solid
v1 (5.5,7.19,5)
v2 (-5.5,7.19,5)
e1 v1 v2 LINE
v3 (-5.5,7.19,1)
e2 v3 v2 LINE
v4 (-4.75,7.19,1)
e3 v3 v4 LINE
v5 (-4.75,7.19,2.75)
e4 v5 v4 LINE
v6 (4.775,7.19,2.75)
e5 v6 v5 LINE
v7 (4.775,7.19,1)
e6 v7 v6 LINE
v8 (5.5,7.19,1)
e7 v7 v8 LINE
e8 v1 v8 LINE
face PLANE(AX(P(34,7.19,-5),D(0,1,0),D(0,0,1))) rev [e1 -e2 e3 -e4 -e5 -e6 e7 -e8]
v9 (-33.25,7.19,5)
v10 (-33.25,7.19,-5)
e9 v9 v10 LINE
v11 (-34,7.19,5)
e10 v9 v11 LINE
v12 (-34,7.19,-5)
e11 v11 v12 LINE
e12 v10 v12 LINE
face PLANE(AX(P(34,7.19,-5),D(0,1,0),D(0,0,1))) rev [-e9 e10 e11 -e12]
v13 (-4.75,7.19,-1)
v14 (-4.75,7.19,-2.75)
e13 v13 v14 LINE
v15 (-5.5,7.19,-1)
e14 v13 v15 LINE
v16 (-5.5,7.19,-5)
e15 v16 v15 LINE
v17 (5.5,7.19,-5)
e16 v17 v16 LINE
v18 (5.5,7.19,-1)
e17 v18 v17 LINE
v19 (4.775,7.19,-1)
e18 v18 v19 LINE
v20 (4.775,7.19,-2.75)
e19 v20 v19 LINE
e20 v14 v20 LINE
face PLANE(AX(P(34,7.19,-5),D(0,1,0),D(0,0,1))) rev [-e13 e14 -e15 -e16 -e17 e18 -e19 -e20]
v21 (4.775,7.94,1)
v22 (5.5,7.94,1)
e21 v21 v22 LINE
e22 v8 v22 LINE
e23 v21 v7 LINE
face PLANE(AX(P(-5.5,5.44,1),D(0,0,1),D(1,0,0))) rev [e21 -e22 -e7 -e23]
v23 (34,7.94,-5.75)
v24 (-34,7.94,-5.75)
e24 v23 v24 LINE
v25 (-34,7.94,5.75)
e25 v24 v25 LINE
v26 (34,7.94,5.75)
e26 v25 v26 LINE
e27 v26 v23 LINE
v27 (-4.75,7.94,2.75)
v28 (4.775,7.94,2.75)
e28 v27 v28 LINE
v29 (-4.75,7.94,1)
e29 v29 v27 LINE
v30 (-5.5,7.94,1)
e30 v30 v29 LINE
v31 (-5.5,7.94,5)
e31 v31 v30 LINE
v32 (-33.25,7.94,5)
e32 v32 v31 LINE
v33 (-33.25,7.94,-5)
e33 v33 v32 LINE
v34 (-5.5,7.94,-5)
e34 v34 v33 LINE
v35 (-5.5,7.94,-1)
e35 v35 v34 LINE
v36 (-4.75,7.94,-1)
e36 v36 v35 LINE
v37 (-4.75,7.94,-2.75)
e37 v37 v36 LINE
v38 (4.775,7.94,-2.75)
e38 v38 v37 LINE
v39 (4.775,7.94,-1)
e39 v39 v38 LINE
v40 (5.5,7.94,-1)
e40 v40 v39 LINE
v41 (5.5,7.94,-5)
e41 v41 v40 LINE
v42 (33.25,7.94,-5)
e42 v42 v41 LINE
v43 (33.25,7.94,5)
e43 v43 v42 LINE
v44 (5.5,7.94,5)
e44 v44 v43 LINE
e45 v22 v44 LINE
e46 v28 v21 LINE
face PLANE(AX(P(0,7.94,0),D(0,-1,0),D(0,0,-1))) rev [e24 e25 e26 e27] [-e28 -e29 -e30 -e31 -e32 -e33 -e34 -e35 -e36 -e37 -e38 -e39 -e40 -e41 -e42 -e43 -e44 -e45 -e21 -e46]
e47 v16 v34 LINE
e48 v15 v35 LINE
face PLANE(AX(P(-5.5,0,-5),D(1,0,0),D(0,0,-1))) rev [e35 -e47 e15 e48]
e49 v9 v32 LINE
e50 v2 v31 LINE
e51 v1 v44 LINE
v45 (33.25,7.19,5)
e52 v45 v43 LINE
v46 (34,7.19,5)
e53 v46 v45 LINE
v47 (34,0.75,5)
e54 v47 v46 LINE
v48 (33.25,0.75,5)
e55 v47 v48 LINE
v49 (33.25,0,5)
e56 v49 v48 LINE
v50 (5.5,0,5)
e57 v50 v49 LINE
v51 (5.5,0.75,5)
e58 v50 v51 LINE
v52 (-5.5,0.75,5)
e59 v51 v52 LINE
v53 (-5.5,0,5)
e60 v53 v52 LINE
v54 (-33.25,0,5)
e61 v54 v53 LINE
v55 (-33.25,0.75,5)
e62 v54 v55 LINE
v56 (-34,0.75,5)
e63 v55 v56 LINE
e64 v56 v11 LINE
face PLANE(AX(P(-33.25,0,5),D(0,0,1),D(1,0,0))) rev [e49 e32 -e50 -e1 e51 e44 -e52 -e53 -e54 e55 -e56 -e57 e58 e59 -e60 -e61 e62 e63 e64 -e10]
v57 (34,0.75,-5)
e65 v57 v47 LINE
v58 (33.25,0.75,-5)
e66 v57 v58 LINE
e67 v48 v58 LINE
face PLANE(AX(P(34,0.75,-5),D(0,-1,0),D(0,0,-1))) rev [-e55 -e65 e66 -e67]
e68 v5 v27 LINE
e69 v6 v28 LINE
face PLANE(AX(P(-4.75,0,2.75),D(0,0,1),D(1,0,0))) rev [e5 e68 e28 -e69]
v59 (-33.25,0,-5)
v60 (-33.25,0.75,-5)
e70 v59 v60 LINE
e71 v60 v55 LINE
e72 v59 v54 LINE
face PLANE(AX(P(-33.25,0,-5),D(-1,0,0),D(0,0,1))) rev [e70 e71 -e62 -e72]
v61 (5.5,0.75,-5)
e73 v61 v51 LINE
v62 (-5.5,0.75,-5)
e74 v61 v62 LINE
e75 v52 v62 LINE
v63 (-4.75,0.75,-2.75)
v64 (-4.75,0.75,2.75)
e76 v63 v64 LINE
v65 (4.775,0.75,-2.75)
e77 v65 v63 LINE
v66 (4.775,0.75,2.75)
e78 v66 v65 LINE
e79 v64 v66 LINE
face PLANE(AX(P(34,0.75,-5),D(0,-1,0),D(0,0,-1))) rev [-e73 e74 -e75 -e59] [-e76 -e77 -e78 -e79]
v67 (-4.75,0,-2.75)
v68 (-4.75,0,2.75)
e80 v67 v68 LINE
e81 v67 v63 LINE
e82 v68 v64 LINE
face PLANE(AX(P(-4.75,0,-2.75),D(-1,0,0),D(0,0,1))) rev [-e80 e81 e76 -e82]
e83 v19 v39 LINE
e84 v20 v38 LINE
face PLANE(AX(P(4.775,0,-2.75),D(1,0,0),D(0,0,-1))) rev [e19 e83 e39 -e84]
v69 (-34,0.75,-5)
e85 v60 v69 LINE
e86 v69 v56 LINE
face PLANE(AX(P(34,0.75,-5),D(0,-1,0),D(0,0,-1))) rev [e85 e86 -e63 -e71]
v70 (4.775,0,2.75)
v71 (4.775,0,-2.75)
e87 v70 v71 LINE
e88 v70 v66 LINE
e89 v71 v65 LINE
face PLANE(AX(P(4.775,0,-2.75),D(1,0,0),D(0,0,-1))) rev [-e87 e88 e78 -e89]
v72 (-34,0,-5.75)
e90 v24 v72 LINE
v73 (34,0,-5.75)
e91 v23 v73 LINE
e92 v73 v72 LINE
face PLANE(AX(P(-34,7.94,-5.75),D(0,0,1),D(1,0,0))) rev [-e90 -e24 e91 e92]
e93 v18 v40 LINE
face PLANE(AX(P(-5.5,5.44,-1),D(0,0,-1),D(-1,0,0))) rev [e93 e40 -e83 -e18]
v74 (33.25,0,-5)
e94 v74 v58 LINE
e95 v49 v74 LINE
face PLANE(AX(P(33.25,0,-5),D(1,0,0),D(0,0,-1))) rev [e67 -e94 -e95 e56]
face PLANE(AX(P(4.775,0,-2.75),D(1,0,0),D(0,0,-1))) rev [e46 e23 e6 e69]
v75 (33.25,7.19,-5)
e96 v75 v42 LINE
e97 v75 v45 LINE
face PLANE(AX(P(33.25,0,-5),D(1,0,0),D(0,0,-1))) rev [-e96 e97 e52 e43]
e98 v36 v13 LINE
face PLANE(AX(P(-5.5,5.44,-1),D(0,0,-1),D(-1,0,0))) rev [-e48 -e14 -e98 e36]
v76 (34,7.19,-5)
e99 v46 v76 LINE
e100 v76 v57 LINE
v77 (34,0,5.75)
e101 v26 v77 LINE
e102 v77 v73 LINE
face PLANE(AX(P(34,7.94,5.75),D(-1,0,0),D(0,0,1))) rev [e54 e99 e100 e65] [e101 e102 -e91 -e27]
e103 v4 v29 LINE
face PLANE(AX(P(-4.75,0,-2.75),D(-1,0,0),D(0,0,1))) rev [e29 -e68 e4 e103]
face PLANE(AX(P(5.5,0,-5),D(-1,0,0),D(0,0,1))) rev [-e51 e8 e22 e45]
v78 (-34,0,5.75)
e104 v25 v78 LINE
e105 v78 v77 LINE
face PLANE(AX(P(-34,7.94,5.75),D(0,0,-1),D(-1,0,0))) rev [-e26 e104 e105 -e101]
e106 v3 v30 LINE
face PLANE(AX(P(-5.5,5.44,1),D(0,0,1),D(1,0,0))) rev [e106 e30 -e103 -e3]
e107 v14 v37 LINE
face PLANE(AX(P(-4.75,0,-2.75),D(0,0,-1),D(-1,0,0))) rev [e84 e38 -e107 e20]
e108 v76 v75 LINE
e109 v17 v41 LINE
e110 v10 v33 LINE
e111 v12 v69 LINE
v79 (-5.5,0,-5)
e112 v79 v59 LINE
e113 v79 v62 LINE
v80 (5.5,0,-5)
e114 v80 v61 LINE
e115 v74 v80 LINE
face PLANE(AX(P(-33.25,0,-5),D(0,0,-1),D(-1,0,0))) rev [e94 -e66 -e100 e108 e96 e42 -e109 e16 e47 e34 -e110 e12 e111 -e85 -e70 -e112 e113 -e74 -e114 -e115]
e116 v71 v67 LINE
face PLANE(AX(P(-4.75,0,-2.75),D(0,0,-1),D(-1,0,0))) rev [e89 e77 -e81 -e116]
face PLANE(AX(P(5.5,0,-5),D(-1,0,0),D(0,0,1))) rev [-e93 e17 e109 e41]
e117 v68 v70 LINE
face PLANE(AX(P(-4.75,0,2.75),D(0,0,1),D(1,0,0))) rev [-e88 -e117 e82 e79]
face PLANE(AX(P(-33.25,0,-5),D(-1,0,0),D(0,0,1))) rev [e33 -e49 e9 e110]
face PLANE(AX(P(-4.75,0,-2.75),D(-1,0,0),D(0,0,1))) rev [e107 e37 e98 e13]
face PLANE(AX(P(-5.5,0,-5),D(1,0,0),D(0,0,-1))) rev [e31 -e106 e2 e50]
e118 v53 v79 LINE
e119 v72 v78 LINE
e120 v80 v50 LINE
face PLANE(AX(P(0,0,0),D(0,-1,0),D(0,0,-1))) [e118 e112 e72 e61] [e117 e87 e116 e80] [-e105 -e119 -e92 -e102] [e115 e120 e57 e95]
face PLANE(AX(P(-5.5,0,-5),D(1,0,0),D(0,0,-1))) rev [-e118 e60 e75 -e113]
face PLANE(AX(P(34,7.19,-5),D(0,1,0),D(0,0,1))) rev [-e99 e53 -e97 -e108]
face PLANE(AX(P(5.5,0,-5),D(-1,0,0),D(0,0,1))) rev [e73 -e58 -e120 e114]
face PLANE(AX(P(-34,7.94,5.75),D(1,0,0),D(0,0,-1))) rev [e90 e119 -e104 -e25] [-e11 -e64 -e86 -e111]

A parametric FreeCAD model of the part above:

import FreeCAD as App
import Part
import Sketcher

doc = App.newDocument("Part")
body = doc.addObject("PartDesign::Body", "Body")

# Sketch on XZ plane
sketch1 = body.newObject("Sketcher::SketchObject", "Sketch")
sketch1.AttachmentSupport = (doc.getObject("XZ_Plane"), [""])
sketch1.MapMode = "FlatFace"
sketch1.addGeometry(Part.LineSegment(App.Vector(-34, -6, 0), App.Vector(-34, 6, 0)), False)
sketch1.addGeometry(Part.LineSegment(App.Vector(-34, 6, 0), App.Vector(34, 6, 0)), False)
sketch1.addGeometry(Part.LineSegment(App.Vector(34, 6, 0), App.Vector(34, -6, 0)), False)
sketch1.addGeometry(Part.LineSegment(App.Vector(34, -6, 0), App.Vector(-34, -6, 0)), False)
sketch1.addConstraint(Sketcher.Constraint("Coincident", 0, 2, 1, 1))
sketch1.addConstraint(Sketcher.Constraint("Coincident", 1, 2, 2, 1))
sketch1.addConstraint(Sketcher.Constraint("Coincident", 2, 2, 3, 1))
sketch1.addConstraint(Sketcher.Constraint("Coincident", 3, 2, 0, 1))
sketch1.addConstraint(Sketcher.Constraint("Vertical", 0))
sketch1.addConstraint(Sketcher.Constraint("Horizontal", 1))
sketch1.addConstraint(Sketcher.Constraint("Vertical", 2))
sketch1.addConstraint(Sketcher.Constraint("Horizontal", 3))
sketch1.addConstraint(Sketcher.Constraint("Symmetric", 0, 2, 2, 2, -1, 1))
sketch1.addConstraint(Sketcher.Constraint("DistanceX", 1, 1, 1, 2, 68.0))
sketch1.addConstraint(Sketcher.Constraint("DistanceY", 0, 1, 0, 2, 11.5))
pad1 = body.newObject("PartDesign::Pad", "Pad")
pad1.Profile = sketch1
pad1.Length = 7.94
pad1.Reversed = True

# Sketch on XZ plane
sketch2 = body.newObject("Sketcher::SketchObject", "Sketch001")
sketch2.AttachmentSupport = (doc.getObject("XZ_Plane"), [""])
sketch2.MapMode = "FlatFace"
sketch2.AttachmentOffset = App.Placement(App.Vector(0, 0, -7.94), App.Rotation())
sketch2.addGeometry(Part.LineSegment(App.Vector(-33, -5, 0), App.Vector(-33, 5, 0)), False)
sketch2.addGeometry(Part.LineSegment(App.Vector(-33, 5, 0), App.Vector(-6, 5, 0)), False)
sketch2.addGeometry(Part.LineSegment(App.Vector(-6, 5, 0), App.Vector(-6, -5, 0)), False)
sketch2.addGeometry(Part.LineSegment(App.Vector(-6, -5, 0), App.Vector(-33, -5, 0)), False)
sketch2.addGeometry(Part.LineSegment(App.Vector(6, -5, 0), App.Vector(6, 5, 0)), False)
sketch2.addGeometry(Part.LineSegment(App.Vector(6, 5, 0), App.Vector(33, 5, 0)), False)
sketch2.addGeometry(Part.LineSegment(App.Vector(33, 5, 0), App.Vector(33, -5, 0)), False)
sketch2.addGeometry(Part.LineSegment(App.Vector(33, -5, 0), App.Vector(6, -5, 0)), False)
sketch2.addGeometry(Part.LineSegment(App.Vector(-5, -3, 0), App.Vector(-5, 3, 0)), False)
sketch2.addGeometry(Part.LineSegment(App.Vector(-5, 3, 0), App.Vector(5, 3, 0)), False)
sketch2.addGeometry(Part.LineSegment(App.Vector(5, 3, 0), App.Vector(5, -3, 0)), False)
sketch2.addGeometry(Part.LineSegment(App.Vector(5, -3, 0), App.Vector(-5, -3, 0)), False)
sketch2.addConstraint(Sketcher.Constraint("Coincident", 0, 2, 1, 1))
sketch2.addConstraint(Sketcher.Constraint("Coincident", 1, 2, 2, 1))
sketch2.addConstraint(Sketcher.Constraint("Coincident", 2, 2, 3, 1))
sketch2.addConstraint(Sketcher.Constraint("Coincident", 3, 2, 0, 1))
sketch2.addConstraint(Sketcher.Constraint("Coincident", 4, 2, 5, 1))
sketch2.addConstraint(Sketcher.Constraint("Coincident", 5, 2, 6, 1))
sketch2.addConstraint(Sketcher.Constraint("Coincident", 6, 2, 7, 1))
sketch2.addConstraint(Sketcher.Constraint("Coincident", 7, 2, 4, 1))
sketch2.addConstraint(Sketcher.Constraint("Coincident", 8, 2, 9, 1))
sketch2.addConstraint(Sketcher.Constraint("Coincident", 9, 2, 10, 1))
sketch2.addConstraint(Sketcher.Constraint("Coincident", 10, 2, 11, 1))
sketch2.addConstraint(Sketcher.Constraint("Coincident", 11, 2, 8, 1))
sketch2.addConstraint(Sketcher.Constraint("Vertical", 0))
sketch2.addConstraint(Sketcher.Constraint("Horizontal", 1))
sketch2.addConstraint(Sketcher.Constraint("Vertical", 2))
sketch2.addConstraint(Sketcher.Constraint("Horizontal", 3))
sketch2.addConstraint(Sketcher.Constraint("Vertical", 4))
sketch2.addConstraint(Sketcher.Constraint("Horizontal", 5))
sketch2.addConstraint(Sketcher.Constraint("Vertical", 6))
sketch2.addConstraint(Sketcher.Constraint("Horizontal", 7))
sketch2.addConstraint(Sketcher.Constraint("Vertical", 8))
sketch2.addConstraint(Sketcher.Constraint("Horizontal", 9))
sketch2.addConstraint(Sketcher.Constraint("Vertical", 10))
sketch2.addConstraint(Sketcher.Constraint("Horizontal", 11))
sketch2.addConstraint(Sketcher.Constraint("Symmetric", 2, 2, 4, 2, -1, 1))
sketch2.addConstraint(Sketcher.Constraint("Symmetric", 0, 2, 6, 2, -1, 1))
sketch2.addConstraint(Sketcher.Constraint("Horizontal", 1, 2, 4, 2))
sketch2.addConstraint(Sketcher.Constraint("DistanceY", 0, 1, 0, 2, 10.0))
sketch2.addConstraint(Sketcher.Constraint("DistanceY", 8, 1, 8, 2, 5.5))
sketch2.addConstraint(Sketcher.Constraint("DistanceX", 1, 2, 4, 2, 11.0))
sketch2.addConstraint(Sketcher.Constraint("DistanceX", 1, 1, 1, 2, 27.75))
sketch2.addConstraint(Sketcher.Constraint("DistanceX", 0, 2, 8, 2, 28.5))
sketch2.addConstraint(Sketcher.Constraint("DistanceX", 9, 1, 9, 2, 9.525))
sketch2.addConstraint(Sketcher.Constraint("DistanceY", -1, 1, 8, 2, 2.75))
pocket1 = body.newObject("PartDesign::Pocket", "Pocket")
pocket1.Profile = sketch2
pocket1.Type = "ThroughAll"
pocket1.Reversed = True

# Sketch on YZ plane
sketch3 = body.newObject("Sketcher::SketchObject", "Sketch002")
sketch3.AttachmentSupport = (doc.getObject("YZ_Plane"), [""])
sketch3.MapMode = "FlatFace"
sketch3.AttachmentOffset = App.Placement(App.Vector(0, 0, -34), App.Rotation())
sketch3.addGeometry(Part.LineSegment(App.Vector(7, -5, 0), App.Vector(1, -5, 0)), False)
sketch3.addGeometry(Part.LineSegment(App.Vector(1, -5, 0), App.Vector(1, 5, 0)), False)
sketch3.addGeometry(Part.LineSegment(App.Vector(1, 5, 0), App.Vector(7, 5, 0)), False)
sketch3.addGeometry(Part.LineSegment(App.Vector(7, 5, 0), App.Vector(7, -5, 0)), False)
sketch3.addConstraint(Sketcher.Constraint("Coincident", 0, 2, 1, 1))
sketch3.addConstraint(Sketcher.Constraint("Coincident", 1, 2, 2, 1))
sketch3.addConstraint(Sketcher.Constraint("Coincident", 2, 2, 3, 1))
sketch3.addConstraint(Sketcher.Constraint("Coincident", 3, 2, 0, 1))
sketch3.addConstraint(Sketcher.Constraint("Horizontal", 0))
sketch3.addConstraint(Sketcher.Constraint("Vertical", 1))
sketch3.addConstraint(Sketcher.Constraint("Horizontal", 2))
sketch3.addConstraint(Sketcher.Constraint("Vertical", 3))
sketch3.addConstraint(Sketcher.Constraint("DistanceY", 1, 1, 1, 2, 10.0))
sketch3.addConstraint(Sketcher.Constraint("DistanceY", 0, 2, -1, 1, 5.0))
sketch3.addConstraint(Sketcher.Constraint("DistanceX", 0, 2, 0, 1, 6.44))
sketch3.addConstraint(Sketcher.Constraint("DistanceX", -1, 1, 0, 2, 0.75))
pocket2 = body.newObject("PartDesign::Pocket", "Pocket001")
pocket2.Profile = sketch3
pocket2.Type = "ThroughAll"
pocket2.Reversed = True

# Sketch on XZ plane
sketch4 = body.newObject("Sketcher::SketchObject", "Sketch003")
sketch4.AttachmentSupport = (doc.getObject("XZ_Plane"), [""])
sketch4.MapMode = "FlatFace"
sketch4.AttachmentOffset = App.Placement(App.Vector(0, 0, -7.94), App.Rotation())
sketch4.addGeometry(Part.LineSegment(App.Vector(-5.5, -1, 0), App.Vector(-5.5, 1, 0)), False)
sketch4.addGeometry(Part.LineSegment(App.Vector(-5.5, 1, 0), App.Vector(5.5, 1, 0)), False)
sketch4.addGeometry(Part.LineSegment(App.Vector(5.5, 1, 0), App.Vector(5.5, -1, 0)), False)
sketch4.addGeometry(Part.LineSegment(App.Vector(5.5, -1, 0), App.Vector(-5.5, -1, 0)), False)
sketch4.addConstraint(Sketcher.Constraint("Coincident", 0, 2, 1, 1))
sketch4.addConstraint(Sketcher.Constraint("Coincident", 1, 2, 2, 1))
sketch4.addConstraint(Sketcher.Constraint("Coincident", 2, 2, 3, 1))
sketch4.addConstraint(Sketcher.Constraint("Coincident", 3, 2, 0, 1))
sketch4.addConstraint(Sketcher.Constraint("Vertical", 0))
sketch4.addConstraint(Sketcher.Constraint("Horizontal", 1))
sketch4.addConstraint(Sketcher.Constraint("Vertical", 2))
sketch4.addConstraint(Sketcher.Constraint("Horizontal", 3))
sketch4.addConstraint(Sketcher.Constraint("Symmetric", 0, 2, 2, 2, -1, 1))
sketch4.addConstraint(Sketcher.Constraint("DistanceX", 1, 1, 1, 2, 11.0))
sketch4.addConstraint(Sketcher.Constraint("DistanceY", 0, 1, 0, 2, 2.0))
pocket3 = body.newObject("PartDesign::Pocket", "Pocket002")
pocket3.Profile = sketch4
pocket3.Length = 2.5
pocket3.Reversed = True

doc.recompute()
